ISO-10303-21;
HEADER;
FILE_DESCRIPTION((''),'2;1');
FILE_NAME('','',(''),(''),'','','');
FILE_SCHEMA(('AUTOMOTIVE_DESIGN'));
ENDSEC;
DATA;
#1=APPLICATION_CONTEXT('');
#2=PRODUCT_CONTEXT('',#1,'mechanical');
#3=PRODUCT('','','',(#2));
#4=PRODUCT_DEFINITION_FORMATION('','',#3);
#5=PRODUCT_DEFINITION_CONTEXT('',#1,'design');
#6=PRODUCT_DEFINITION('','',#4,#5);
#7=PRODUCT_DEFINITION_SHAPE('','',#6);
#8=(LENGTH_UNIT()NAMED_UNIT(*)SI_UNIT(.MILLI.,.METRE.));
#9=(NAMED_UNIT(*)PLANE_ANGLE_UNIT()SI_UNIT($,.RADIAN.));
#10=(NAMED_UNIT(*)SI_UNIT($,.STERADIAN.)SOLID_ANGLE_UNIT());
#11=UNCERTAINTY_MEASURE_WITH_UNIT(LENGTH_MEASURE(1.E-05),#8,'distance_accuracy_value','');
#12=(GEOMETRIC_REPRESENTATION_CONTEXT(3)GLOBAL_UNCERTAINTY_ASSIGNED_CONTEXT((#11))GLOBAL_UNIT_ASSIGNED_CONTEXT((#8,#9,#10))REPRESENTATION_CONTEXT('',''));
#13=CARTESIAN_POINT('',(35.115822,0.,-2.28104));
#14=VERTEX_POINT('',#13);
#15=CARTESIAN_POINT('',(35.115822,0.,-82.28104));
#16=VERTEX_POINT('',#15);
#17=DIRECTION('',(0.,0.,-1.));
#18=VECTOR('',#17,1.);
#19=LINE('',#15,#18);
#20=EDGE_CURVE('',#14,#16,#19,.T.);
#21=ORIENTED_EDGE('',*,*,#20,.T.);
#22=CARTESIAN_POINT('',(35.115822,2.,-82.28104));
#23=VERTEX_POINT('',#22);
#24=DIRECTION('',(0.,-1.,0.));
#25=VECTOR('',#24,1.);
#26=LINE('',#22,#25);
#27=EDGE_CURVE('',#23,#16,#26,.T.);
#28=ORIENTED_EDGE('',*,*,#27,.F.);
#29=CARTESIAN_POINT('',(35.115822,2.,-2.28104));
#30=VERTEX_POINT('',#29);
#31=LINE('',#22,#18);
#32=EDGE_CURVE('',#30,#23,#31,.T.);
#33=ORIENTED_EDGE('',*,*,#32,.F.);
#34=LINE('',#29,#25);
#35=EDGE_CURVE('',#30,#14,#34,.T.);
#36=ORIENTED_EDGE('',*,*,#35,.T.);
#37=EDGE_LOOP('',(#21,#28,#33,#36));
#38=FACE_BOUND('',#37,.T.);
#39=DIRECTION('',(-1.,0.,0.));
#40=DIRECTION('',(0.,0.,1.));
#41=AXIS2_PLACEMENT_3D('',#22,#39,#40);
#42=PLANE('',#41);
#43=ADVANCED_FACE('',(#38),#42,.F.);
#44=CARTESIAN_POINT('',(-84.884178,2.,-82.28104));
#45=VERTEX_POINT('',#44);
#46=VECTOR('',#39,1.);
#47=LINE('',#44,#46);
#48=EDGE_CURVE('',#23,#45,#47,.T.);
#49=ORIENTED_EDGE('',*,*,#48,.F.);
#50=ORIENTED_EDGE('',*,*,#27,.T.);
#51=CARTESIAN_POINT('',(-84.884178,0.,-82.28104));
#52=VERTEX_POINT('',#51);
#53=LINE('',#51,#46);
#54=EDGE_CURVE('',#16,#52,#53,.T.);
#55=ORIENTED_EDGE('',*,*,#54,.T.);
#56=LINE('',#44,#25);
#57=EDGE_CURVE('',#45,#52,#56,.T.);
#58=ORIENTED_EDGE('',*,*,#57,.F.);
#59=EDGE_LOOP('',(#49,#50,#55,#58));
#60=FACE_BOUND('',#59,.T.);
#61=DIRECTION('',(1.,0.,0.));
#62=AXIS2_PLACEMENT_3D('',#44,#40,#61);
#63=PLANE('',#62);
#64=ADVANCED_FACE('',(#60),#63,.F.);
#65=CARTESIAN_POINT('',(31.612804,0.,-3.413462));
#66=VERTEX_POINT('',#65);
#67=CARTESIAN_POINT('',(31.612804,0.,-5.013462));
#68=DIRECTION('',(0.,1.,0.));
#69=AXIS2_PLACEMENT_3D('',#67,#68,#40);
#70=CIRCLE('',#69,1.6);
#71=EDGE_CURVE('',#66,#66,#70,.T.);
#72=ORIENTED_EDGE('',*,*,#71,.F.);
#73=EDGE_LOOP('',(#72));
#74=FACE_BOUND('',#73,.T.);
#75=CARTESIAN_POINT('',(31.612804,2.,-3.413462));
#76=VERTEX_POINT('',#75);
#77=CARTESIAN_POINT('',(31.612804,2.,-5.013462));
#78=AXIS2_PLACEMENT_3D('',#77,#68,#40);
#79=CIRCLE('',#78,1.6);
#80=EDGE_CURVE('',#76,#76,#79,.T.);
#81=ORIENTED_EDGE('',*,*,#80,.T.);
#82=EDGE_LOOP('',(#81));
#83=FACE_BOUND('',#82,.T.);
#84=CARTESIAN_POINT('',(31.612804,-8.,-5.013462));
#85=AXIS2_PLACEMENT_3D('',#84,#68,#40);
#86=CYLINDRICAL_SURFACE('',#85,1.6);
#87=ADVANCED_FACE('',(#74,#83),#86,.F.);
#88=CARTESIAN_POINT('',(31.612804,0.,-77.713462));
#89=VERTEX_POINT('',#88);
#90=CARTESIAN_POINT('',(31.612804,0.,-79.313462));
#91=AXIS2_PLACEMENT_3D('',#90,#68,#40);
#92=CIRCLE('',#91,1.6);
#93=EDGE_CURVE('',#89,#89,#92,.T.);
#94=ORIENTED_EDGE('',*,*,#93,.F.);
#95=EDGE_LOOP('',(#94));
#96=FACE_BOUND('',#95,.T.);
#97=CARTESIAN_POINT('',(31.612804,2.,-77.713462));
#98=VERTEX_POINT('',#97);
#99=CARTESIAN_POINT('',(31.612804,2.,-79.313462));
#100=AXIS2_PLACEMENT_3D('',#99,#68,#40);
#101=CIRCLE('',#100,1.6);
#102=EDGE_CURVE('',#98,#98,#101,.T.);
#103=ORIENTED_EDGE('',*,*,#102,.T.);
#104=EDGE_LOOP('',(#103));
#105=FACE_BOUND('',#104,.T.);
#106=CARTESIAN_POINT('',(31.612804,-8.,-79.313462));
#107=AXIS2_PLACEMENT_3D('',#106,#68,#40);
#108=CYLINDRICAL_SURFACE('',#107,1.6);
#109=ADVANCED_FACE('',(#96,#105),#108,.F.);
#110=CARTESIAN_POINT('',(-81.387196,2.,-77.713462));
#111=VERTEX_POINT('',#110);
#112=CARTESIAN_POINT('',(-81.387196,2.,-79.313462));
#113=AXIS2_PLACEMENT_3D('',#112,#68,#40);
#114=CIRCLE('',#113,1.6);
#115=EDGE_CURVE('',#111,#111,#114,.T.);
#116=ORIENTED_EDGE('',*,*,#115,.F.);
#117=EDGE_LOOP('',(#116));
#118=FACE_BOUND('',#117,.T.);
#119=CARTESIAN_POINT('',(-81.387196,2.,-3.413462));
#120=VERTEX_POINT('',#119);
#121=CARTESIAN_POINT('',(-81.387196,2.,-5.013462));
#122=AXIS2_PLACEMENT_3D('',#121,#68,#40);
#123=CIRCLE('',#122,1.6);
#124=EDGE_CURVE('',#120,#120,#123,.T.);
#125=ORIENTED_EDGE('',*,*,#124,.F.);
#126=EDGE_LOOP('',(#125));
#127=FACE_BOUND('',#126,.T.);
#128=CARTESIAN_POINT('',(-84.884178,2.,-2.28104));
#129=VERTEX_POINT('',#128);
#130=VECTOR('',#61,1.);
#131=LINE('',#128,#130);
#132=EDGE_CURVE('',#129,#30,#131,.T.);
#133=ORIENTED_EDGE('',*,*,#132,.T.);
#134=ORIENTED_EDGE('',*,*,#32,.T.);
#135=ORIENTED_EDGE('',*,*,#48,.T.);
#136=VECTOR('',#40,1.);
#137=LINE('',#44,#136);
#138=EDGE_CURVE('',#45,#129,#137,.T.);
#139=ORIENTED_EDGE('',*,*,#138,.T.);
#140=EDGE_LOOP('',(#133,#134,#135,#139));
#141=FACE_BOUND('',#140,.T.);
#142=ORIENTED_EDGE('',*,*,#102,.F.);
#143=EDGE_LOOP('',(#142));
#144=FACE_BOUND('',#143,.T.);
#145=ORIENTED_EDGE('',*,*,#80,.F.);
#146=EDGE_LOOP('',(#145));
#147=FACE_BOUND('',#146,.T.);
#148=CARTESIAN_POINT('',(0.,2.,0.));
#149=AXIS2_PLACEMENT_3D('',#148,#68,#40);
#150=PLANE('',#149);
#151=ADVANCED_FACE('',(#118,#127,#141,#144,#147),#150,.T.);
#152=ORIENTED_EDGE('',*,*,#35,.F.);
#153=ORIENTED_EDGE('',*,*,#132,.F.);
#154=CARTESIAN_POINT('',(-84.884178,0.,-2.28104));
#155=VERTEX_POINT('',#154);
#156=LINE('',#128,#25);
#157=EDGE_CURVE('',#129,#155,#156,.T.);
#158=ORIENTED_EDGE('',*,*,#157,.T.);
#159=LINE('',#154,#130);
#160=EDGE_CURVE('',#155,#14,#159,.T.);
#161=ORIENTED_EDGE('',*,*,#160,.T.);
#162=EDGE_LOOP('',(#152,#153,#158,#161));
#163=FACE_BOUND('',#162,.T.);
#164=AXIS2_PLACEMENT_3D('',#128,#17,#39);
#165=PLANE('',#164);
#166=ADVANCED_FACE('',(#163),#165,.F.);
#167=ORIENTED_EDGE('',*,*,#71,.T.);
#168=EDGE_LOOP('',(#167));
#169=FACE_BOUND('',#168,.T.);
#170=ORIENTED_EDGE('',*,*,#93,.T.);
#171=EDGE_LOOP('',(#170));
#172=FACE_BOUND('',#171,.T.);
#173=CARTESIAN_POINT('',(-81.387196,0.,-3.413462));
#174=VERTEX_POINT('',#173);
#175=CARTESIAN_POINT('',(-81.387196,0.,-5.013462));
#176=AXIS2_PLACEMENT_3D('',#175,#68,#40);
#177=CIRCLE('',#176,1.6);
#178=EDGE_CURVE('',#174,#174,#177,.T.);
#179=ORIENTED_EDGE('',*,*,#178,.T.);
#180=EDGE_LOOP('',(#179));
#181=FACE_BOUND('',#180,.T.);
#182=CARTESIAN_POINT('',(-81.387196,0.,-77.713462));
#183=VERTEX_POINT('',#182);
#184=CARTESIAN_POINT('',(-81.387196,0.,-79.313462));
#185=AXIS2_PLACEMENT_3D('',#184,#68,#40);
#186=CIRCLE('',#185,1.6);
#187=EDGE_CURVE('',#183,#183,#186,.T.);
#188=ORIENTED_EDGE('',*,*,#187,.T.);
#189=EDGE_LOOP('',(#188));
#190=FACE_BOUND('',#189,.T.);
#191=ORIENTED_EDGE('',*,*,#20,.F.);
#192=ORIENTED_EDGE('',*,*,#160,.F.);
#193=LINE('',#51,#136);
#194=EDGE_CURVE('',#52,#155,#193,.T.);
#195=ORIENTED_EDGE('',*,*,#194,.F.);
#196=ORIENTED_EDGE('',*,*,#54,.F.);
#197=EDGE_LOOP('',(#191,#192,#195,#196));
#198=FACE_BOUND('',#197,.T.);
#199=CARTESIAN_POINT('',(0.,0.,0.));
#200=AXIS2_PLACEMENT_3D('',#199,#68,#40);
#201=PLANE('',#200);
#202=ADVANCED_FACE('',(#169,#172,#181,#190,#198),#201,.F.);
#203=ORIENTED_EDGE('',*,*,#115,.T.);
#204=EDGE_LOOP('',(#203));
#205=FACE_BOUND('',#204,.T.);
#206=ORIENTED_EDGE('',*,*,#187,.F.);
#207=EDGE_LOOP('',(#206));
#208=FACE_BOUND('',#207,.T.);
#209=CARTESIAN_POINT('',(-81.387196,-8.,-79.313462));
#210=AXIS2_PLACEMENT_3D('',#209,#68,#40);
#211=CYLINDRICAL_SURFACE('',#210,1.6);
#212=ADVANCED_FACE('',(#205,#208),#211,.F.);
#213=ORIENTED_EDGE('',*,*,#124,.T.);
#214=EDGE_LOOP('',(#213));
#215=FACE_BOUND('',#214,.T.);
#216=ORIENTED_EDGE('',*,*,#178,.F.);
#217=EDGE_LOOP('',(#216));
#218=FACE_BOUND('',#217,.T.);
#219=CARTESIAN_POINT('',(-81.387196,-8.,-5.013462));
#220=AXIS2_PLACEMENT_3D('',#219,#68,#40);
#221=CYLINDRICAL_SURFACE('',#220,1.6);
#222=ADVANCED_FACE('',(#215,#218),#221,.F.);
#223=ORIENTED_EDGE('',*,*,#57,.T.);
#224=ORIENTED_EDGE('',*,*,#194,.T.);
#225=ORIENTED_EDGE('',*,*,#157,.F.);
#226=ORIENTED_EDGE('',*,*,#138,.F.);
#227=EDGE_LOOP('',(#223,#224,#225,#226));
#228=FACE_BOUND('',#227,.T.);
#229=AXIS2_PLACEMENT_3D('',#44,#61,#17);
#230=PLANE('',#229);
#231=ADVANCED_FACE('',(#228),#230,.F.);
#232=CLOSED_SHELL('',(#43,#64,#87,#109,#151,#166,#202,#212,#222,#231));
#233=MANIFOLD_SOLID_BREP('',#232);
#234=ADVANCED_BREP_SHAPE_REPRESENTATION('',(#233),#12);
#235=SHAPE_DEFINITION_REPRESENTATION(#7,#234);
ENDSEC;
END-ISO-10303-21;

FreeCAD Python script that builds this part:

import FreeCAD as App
import Part
import Sketcher
Q = App.Units.Quantity


def add_polygon(sketch, points):
    """Adds a closed chain of lines whose ends are joined by coincident constraints."""
    first, n = sketch.GeometryCount, len(points)
    for a, b in zip(points, points[1:] + points[:1]):
        sketch.addGeometry(Part.LineSegment(App.Vector(*a, 0), App.Vector(*b, 0)), False)
    for i in range(n):
        sketch.addConstraint(Sketcher.Constraint("Coincident", first + i, 2, first + (i + 1) % n, 1))

doc = App.newDocument("Part")
body = doc.addObject("PartDesign::Body", "Body")

# Sketch on XZ plane
sketch1 = body.newObject("Sketcher::SketchObject", "Sketch")
sketch1.AttachmentSupport = (doc.getObject("XZ_Plane"), [""])
sketch1.MapMode = "FlatFace"
add_polygon(sketch1, [(-85, -82), (-85, -2), (35, -2), (35, -82)])  # lines 0-3
sketch1.addConstraint([
    Sketcher.Constraint("Vertical", 0),
    Sketcher.Constraint("Horizontal", 1),
    Sketcher.Constraint("Vertical", 2),
    Sketcher.Constraint("Horizontal", 3),
    Sketcher.Constraint("DistanceX", 1, 1, 1, 2, Q("120 mm")),
    Sketcher.Constraint("DistanceY", 0, 1, 0, 2, Q("80 mm")),
    Sketcher.Constraint("DistanceX", 0, 2, -1, 1, Q("84.884178 mm")),
    Sketcher.Constraint("DistanceY", 0, 2, -1, 1, Q("2.28104 mm")),
])
pad1 = body.newObject("PartDesign::Pad", "Pad")
pad1.Profile = sketch1
pad1.Length = 2
pad1.Reversed = True

# Sketch on XZ plane
sketch2 = body.newObject("Sketcher::SketchObject", "Sketch001")
sketch2.AttachmentSupport = (doc.getObject("XZ_Plane"), [""])
sketch2.MapMode = "FlatFace"
sketch2.AttachmentOffset = App.Placement(App.Vector(0, 0, -2), App.Rotation())
sketch2.addGeometry([
    Part.Circle(App.Vector(-81.4, -79.3, 0), App.Vector(0, 0, 1), 1.6),
    Part.Circle(App.Vector(-81.4, -5, 0), App.Vector(0, 0, 1), 1.6),
    Part.Circle(App.Vector(31.6, -5, 0), App.Vector(0, 0, 1), 1.6),
    Part.Circle(App.Vector(31.6, -79.3, 0), App.Vector(0, 0, 1), 1.6),
], False)
sketch2.addConstraint([
    Sketcher.Constraint("Equal", 0, 1),
    Sketcher.Constraint("Equal", 1, 2),
    Sketcher.Constraint("Equal", 2, 3),
    Sketcher.Constraint("Horizontal", 1, 3, 2, 3),
    Sketcher.Constraint("Horizontal", 0, 3, 3, 3),
    Sketcher.Constraint("Vertical", 0, 3, 1, 3),
    Sketcher.Constraint("Vertical", 2, 3, 3, 3),
    Sketcher.Constraint("Diameter", 0, Q("3.2 mm")),
    Sketcher.Constraint("DistanceX", 1, 3, 2, 3, Q("113 mm")),
    Sketcher.Constraint("DistanceY", 0, 3, 1, 3, Q("74.3 mm")),
    Sketcher.Constraint("DistanceX", 0, 3, -1, 1, Q("81.387196 mm")),
    Sketcher.Constraint("DistanceY", 0, 3, -1, 1, Q("79.313462 mm")),
])
pocket1 = body.newObject("PartDesign::Pocket", "Pocket")
pocket1.Profile = sketch2
pocket1.Length = 10
pocket1.Reversed = True

doc.recompute()
